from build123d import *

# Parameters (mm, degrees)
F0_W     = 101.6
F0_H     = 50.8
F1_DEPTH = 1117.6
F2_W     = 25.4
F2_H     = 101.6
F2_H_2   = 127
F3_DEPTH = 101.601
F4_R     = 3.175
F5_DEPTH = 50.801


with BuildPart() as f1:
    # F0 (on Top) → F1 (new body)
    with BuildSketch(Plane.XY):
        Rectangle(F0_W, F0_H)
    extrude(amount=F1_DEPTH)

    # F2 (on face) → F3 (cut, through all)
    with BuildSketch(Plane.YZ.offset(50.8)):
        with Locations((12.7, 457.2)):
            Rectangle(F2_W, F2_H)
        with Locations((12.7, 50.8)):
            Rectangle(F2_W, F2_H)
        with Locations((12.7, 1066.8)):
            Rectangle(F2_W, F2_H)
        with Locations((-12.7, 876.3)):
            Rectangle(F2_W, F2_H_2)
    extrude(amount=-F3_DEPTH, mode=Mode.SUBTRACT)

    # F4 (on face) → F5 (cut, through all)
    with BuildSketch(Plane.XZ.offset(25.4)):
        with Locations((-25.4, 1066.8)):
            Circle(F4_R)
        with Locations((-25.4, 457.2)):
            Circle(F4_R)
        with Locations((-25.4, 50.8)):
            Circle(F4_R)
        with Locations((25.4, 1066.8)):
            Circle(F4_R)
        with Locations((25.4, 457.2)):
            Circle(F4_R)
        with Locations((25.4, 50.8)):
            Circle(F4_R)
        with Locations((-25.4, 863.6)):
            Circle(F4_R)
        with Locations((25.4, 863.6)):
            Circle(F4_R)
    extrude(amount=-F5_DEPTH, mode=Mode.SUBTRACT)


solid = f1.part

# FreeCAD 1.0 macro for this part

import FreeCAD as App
import Part
import Sketcher

V = App.Vector
Q = App.Units.Quantity

doc = App.newDocument("Part")
body = doc.addObject("PartDesign::Body", "Body")

# Sketch on XY plane
sketch1 = doc.addObject("Sketcher::SketchObject", "Sketch")
body.addObject(sketch1)
sketch1.AttachmentSupport = (doc.XY_Plane, [""])
sketch1.MapMode = "FlatFace"
sketch1.addGeometry([
    Part.LineSegment(V(-51, 25, 0), V(-51, -25, 0)),
    Part.LineSegment(V(-51, -25, 0), V(51, -25, 0)),
    Part.LineSegment(V(51, -25, 0), V(51, 25, 0)),
    Part.LineSegment(V(51, 25, 0), V(-51, 25, 0)),
], False)
sketch1.addConstraint([
    Sketcher.Constraint("Coincident", 0, 2, 1, 1),
    Sketcher.Constraint("Coincident", 1, 2, 2, 1),
    Sketcher.Constraint("Coincident", 2, 2, 3, 1),
    Sketcher.Constraint("Coincident", 3, 2, 0, 1),
    Sketcher.Constraint("Vertical", 0),
    Sketcher.Constraint("Horizontal", 1),
    Sketcher.Constraint("Vertical", 2),
    Sketcher.Constraint("Horizontal", 3),
    Sketcher.Constraint("Symmetric", 0, 2, 2, 2, -1, 1),
    Sketcher.Constraint("DistanceX", 1, 1, 1, 2, Q("4 in")),
    Sketcher.Constraint("DistanceY", 0, 2, 0, 1, Q("2 in")),
])
pad1 = doc.addObject("PartDesign::Pad", "Pad")
body.addObject(pad1)
pad1.Profile = sketch1
pad1.Length = Q("44 in")

# Sketch on YZ plane
sketch2 = doc.addObject("Sketcher::SketchObject", "Sketch001")
body.addObject(sketch2)
sketch2.AttachmentSupport = (doc.YZ_Plane, [""])
sketch2.MapMode = "FlatFace"
sketch2.AttachmentOffset = App.Placement(V(0, 0, 2 * 25.4), App.Rotation())
sketch2.addGeometry([
    Part.LineSegment(V(0, 508, 0), V(0, 406, 0)),  # 0
    Part.LineSegment(V(0, 406, 0), V(25, 406, 0)),  # 1
    Part.LineSegment(V(25, 406, 0), V(25, 508, 0)),  # 2
    Part.LineSegment(V(25, 508, 0), V(0, 508, 0)),  # 3
    Part.LineSegment(V(0, 102, 0), V(0, 0, 0)),  # 4
    Part.LineSegment(V(0, 0, 0), V(25, 0, 0)),  # 5
    Part.LineSegment(V(25, 0, 0), V(25, 102, 0)),  # 6
    Part.LineSegment(V(25, 102, 0), V(0, 102, 0)),  # 7
    Part.LineSegment(V(0, 1118, 0), V(0, 1016, 0)),  # 8
    Part.LineSegment(V(0, 1016, 0), V(25, 1016, 0)),  # 9
    Part.LineSegment(V(25, 1016, 0), V(25, 1118, 0)),  # 10
    Part.LineSegment(V(25, 1118, 0), V(0, 1118, 0)),  # 11
    Part.LineSegment(V(-25, 940, 0), V(-25, 813, 0)),  # 12
    Part.LineSegment(V(-25, 813, 0), V(0, 813, 0)),  # 13
    Part.LineSegment(V(0, 813, 0), V(0, 940, 0)),  # 14
    Part.LineSegment(V(0, 940, 0), V(-25, 940, 0)),  # 15
], False)
sketch2.addConstraint([
    Sketcher.Constraint("Coincident", 0, 2, 1, 1),
    Sketcher.Constraint("Coincident", 1, 2, 2, 1),
    Sketcher.Constraint("Coincident", 2, 2, 3, 1),
    Sketcher.Constraint("Coincident", 3, 2, 0, 1),
    Sketcher.Constraint("Coincident", 4, 2, 5, 1),
    Sketcher.Constraint("Coincident", 5, 2, 6, 1),
    Sketcher.Constraint("Coincident", 6, 2, 7, 1),
    Sketcher.Constraint("Coincident", 7, 2, 4, 1),
    Sketcher.Constraint("Coincident", 8, 2, 9, 1),
    Sketcher.Constraint("Coincident", 9, 2, 10, 1),
    Sketcher.Constraint("Coincident", 10, 2, 11, 1),
    Sketcher.Constraint("Coincident", 11, 2, 8, 1),
    Sketcher.Constraint("Coincident", 12, 2, 13, 1),
    Sketcher.Constraint("Coincident", 13, 2, 14, 1),
    Sketcher.Constraint("Coincident", 14, 2, 15, 1),
    Sketcher.Constraint("Coincident", 15, 2, 12, 1),
    Sketcher.Constraint("Vertical", 0),
    Sketcher.Constraint("Horizontal", 1),
    Sketcher.Constraint("Vertical", 2),
    Sketcher.Constraint("Horizontal", 3),
    Sketcher.Constraint("Vertical", 4),
    Sketcher.Constraint("Horizontal", 5),
    Sketcher.Constraint("Vertical", 6),
    Sketcher.Constraint("Horizontal", 7),
    Sketcher.Constraint("Vertical", 8),
    Sketcher.Constraint("Horizontal", 9),
    Sketcher.Constraint("Vertical", 10),
    Sketcher.Constraint("Horizontal", 11),
    Sketcher.Constraint("Vertical", 12),
    Sketcher.Constraint("Horizontal", 13),
    Sketcher.Constraint("Vertical", 14),
    Sketcher.Constraint("Horizontal", 15),
    Sketcher.Constraint("Coincident", 4, 2, -1, 1),
    Sketcher.Constraint("PointOnObject", 0, 2, -2),
    Sketcher.Constraint("PointOnObject", 8, 2, -2),
    Sketcher.Constraint("PointOnObject", 13, 2, -2),
    Sketcher.Constraint("Vertical", 2, 2, 5, 2),
    Sketcher.Constraint("Vertical", 6, 2, 9, 2),
    Sketcher.Constraint("Equal", 11, 13),
    Sketcher.Constraint("Equal", 2, 4),
    Sketcher.Constraint("Equal", 6, 8),
    Sketcher.Constraint("DistanceX", 1, 1, 1, 2, Q("1 in")),
    Sketcher.Constraint("DistanceY", 0, 2, 0, 1, Q("4 in")),
    Sketcher.Constraint("DistanceY", 12, 2, 12, 1, Q("5 in")),
    Sketcher.Constraint("DistanceY", -1, 1, 0, 2, Q("16 in")),
    Sketcher.Constraint("DistanceY", -1, 1, 8, 2, Q("40 in")),
    Sketcher.Constraint("DistanceY", -1, 1, 12, 2, Q("32 in")),
])
pocket1 = doc.addObject("PartDesign::Pocket", "Pocket")
body.addObject(pocket1)
pocket1.Profile = sketch2
pocket1.Type = "ThroughAll"

# Sketch on XZ plane
sketch3 = doc.addObject("Sketcher::SketchObject", "Sketch002")
body.addObject(sketch3)
sketch3.AttachmentSupport = (doc.XZ_Plane, [""])
sketch3.MapMode = "FlatFace"
sketch3.AttachmentOffset = App.Placement(V(0, 0, 1 * 25.4), App.Rotation())
sketch3.addGeometry([
    Part.Circle(V(-25.4, 1066.8, 0), V(0, 0, 1), 3.2),  # 0
    Part.Circle(V(-25.4, 457.2, 0), V(0, 0, 1), 3.2),  # 1
    Part.Circle(V(-25.4, 50.8, 0), V(0, 0, 1), 3.2),  # 2
    Part.Circle(V(25.4, 1066.8, 0), V(0, 0, 1), 3.2),  # 3
    Part.Circle(V(25.4, 457.2, 0), V(0, 0, 1), 3.2),  # 4
    Part.Circle(V(25.4, 50.8, 0), V(0, 0, 1), 3.2),  # 5
    Part.Circle(V(-25.4, 863.6, 0), V(0, 0, 1), 3.2),  # 6
    Part.Circle(V(25.4, 863.6, 0), V(0, 0, 1), 3.2),  # 7
], False)
sketch3.addConstraint([
    Sketcher.Constraint("Equal", 0, 1),
    Sketcher.Constraint("Equal", 1, 2),
    Sketcher.Constraint("Equal", 2, 3),
    Sketcher.Constraint("Equal", 3, 4),
    Sketcher.Constraint("Equal", 4, 5),
    Sketcher.Constraint("Equal", 5, 6),
    Sketcher.Constraint("Equal", 6, 7),
    Sketcher.Constraint("Symmetric", 0, 3, 3, 3, -2),
    Sketcher.Constraint("Symmetric", 1, 3, 4, 3, -2),
    Sketcher.Constraint("Symmetric", 2, 3, 5, 3, -2),
    Sketcher.Constraint("Symmetric", 6, 3, 7, 3, -2),
    Sketcher.Constraint("Vertical", 0, 3, 1, 3),
    Sketcher.Constraint("Vertical", 1, 3, 2, 3),
    Sketcher.Constraint("Vertical", 2, 3, 6, 3),
    Sketcher.Constraint("Diameter", 0, Q("0.25 in")),
    Sketcher.Constraint("DistanceX", 0, 3, -1, 1, Q("1 in")),
    Sketcher.Constraint("DistanceY", -1, 1, 0, 3, Q("42 in")),
    Sketcher.Constraint("DistanceY", -1, 1, 1, 3, Q("18 in")),
    Sketcher.Constraint("DistanceY", -1, 1, 2, 3, Q("2 in")),
    Sketcher.Constraint("DistanceY", -1, 1, 6, 3, Q("34 in")),
])
pocket2 = doc.addObject("PartDesign::Pocket", "Pocket001")
body.addObject(pocket2)
pocket2.Profile = sketch3
pocket2.Type = "ThroughAll"

doc.recompute()
